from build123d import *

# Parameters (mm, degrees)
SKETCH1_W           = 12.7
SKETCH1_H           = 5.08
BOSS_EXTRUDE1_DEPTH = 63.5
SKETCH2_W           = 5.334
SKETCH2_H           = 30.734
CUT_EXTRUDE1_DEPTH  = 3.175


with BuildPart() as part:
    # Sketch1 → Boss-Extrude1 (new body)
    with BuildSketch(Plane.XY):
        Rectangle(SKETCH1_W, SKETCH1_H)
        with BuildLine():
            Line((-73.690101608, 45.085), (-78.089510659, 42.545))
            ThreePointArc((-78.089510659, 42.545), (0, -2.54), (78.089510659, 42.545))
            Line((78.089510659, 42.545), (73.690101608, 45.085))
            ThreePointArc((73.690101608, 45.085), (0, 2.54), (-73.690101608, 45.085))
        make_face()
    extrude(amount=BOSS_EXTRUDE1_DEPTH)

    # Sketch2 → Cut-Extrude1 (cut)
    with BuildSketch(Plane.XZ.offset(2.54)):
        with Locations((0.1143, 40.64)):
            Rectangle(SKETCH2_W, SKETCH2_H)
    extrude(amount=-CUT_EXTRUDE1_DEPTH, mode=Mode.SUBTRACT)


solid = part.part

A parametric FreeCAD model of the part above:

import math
import FreeCAD as App
import Part
import Sketcher

V = App.Vector
Q = App.Units.Quantity


def add_polygon(sketch, points):
    """Adds a closed chain of lines whose ends are joined by coincident constraints."""
    first, n = sketch.GeometryCount, len(points)
    for a, b in zip(points, points[1:] + points[:1]):
        sketch.addGeometry(Part.LineSegment(App.Vector(*a, 0), App.Vector(*b, 0)), False)
    for i in range(n):
        sketch.addConstraint(Sketcher.Constraint("Coincident", first + i, 2, first + (i + 1) % n, 1))

doc = App.newDocument("Part")
body = doc.addObject("PartDesign::Body", "Body")

# Sketch on XY plane
sketch1 = doc.addObject("Sketcher::SketchObject", "Sketch")
body.addObject(sketch1)
sketch1.AttachmentSupport = (doc.XY_Plane, [""])
sketch1.MapMode = "FlatFace"
sketch1.addGeometry([
    Part.LineSegment(V(-6.35, -2.32, 0), V(-6.35, -2.54, 0)),  # 0
    Part.LineSegment(V(-6.35, -2.54, 0), V(6.35, -2.54, 0)),  # 1
    Part.LineSegment(V(6.35, -2.54, 0), V(6.35, -2.32, 0)),  # 2
    Part.ArcOfCircle(Part.Circle(V(0, 87.63, 0), V(0, 0, 1), 90.17), math.radians(-86), math.radians(-30)),  # 3
    Part.LineSegment(V(78.09, 42.55, 0), V(73.69, 45.09, 0)),  # 4
    Part.ArcOfCircle(Part.Circle(V(0, 87.63, 0), V(0, 0, 1), 85.09), math.radians(-150), math.radians(-30)),  # 5
    Part.LineSegment(V(-73.69, 45.09, 0), V(-78.09, 42.55, 0)),  # 6
    Part.ArcOfCircle(Part.Circle(V(0, 87.63, 0), V(0, 0, 1), 90.17), math.radians(-150), math.radians(-94)),  # 7
], False)
sketch1.addConstraint([
    Sketcher.Constraint("Coincident", 0, 2, 1, 1),
    Sketcher.Constraint("Coincident", 1, 2, 2, 1),
    Sketcher.Constraint("Coincident", 2, 2, 3, 1),
    Sketcher.Constraint("Coincident", 3, 2, 4, 1),
    Sketcher.Constraint("Coincident", 4, 2, 5, 2),
    Sketcher.Constraint("Coincident", 5, 1, 6, 1),
    Sketcher.Constraint("Coincident", 6, 2, 7, 1),
    Sketcher.Constraint("Coincident", 7, 2, 0, 1),
    Sketcher.Constraint("Vertical", 0),
    Sketcher.Constraint("Horizontal", 1),
    Sketcher.Constraint("Vertical", 2),
    Sketcher.Constraint("Coincident", 5, 3, 3, 3),
    Sketcher.Constraint("Coincident", 7, 3, 3, 3),
    Sketcher.Constraint("Equal", 3, 7),
    Sketcher.Constraint("Symmetric", 4, 2, 5, 1, -2),
    Sketcher.Constraint("Horizontal", 3, 2, 6, 2),
    Sketcher.Constraint("Horizontal", 2, 2, 7, 2),
    Sketcher.Constraint("Radius", 3, Q("3.55 in")),
    Sketcher.Constraint("Radius", 5, Q("3.35 in")),
    Sketcher.Constraint("DistanceX", 1, 1, 1, 2, Q("0.5 in")),
    Sketcher.Constraint("Angle", 4, Q("150 deg")),
    Sketcher.Constraint("DistanceY", 0, 2, -1, 1, Q("0.1 in")),
    Sketcher.Constraint("DistanceY", -1, 1, 3, 3, Q("3.45 in")),
    Sketcher.Constraint("DistanceY", -1, 1, 3, 2, Q("1.675 in")),
])
pad1 = doc.addObject("PartDesign::Pad", "Pad")
body.addObject(pad1)
pad1.Profile = sketch1
pad1.Length = Q("2.5 in")

# Sketch on XZ plane
sketch2 = doc.addObject("Sketcher::SketchObject", "Sketch001")
body.addObject(sketch2)
sketch2.AttachmentSupport = (doc.XZ_Plane, [""])
sketch2.MapMode = "FlatFace"
sketch2.AttachmentOffset = App.Placement(V(0, 0, 0.1 * 25.4), App.Rotation())
add_polygon(sketch2, [(-3, 56), (-3, 25), (3, 25), (3, 56)])  # lines 0-3
sketch2.addConstraint([
    Sketcher.Constraint("Vertical", 0),
    Sketcher.Constraint("Horizontal", 1),
    Sketcher.Constraint("Vertical", 2),
    Sketcher.Constraint("Horizontal", 3),
    Sketcher.Constraint("DistanceX", 1, 1, 1, 2, Q("0.21 in")),
    Sketcher.Constraint("DistanceY", 0, 2, 0, 1, Q("1.21 in")),
    Sketcher.Constraint("DistanceY", -1, 1, 0, 2, Q("0.995 in")),
    Sketcher.Constraint("DistanceX", 0, 2, -1, 1, Q("0.1005 in")),
])
pocket1 = doc.addObject("PartDesign::Pocket", "Pocket")
body.addObject(pocket1)
pocket1.Profile = sketch2
pocket1.Length = Q("0.125 in")

doc.recompute()
